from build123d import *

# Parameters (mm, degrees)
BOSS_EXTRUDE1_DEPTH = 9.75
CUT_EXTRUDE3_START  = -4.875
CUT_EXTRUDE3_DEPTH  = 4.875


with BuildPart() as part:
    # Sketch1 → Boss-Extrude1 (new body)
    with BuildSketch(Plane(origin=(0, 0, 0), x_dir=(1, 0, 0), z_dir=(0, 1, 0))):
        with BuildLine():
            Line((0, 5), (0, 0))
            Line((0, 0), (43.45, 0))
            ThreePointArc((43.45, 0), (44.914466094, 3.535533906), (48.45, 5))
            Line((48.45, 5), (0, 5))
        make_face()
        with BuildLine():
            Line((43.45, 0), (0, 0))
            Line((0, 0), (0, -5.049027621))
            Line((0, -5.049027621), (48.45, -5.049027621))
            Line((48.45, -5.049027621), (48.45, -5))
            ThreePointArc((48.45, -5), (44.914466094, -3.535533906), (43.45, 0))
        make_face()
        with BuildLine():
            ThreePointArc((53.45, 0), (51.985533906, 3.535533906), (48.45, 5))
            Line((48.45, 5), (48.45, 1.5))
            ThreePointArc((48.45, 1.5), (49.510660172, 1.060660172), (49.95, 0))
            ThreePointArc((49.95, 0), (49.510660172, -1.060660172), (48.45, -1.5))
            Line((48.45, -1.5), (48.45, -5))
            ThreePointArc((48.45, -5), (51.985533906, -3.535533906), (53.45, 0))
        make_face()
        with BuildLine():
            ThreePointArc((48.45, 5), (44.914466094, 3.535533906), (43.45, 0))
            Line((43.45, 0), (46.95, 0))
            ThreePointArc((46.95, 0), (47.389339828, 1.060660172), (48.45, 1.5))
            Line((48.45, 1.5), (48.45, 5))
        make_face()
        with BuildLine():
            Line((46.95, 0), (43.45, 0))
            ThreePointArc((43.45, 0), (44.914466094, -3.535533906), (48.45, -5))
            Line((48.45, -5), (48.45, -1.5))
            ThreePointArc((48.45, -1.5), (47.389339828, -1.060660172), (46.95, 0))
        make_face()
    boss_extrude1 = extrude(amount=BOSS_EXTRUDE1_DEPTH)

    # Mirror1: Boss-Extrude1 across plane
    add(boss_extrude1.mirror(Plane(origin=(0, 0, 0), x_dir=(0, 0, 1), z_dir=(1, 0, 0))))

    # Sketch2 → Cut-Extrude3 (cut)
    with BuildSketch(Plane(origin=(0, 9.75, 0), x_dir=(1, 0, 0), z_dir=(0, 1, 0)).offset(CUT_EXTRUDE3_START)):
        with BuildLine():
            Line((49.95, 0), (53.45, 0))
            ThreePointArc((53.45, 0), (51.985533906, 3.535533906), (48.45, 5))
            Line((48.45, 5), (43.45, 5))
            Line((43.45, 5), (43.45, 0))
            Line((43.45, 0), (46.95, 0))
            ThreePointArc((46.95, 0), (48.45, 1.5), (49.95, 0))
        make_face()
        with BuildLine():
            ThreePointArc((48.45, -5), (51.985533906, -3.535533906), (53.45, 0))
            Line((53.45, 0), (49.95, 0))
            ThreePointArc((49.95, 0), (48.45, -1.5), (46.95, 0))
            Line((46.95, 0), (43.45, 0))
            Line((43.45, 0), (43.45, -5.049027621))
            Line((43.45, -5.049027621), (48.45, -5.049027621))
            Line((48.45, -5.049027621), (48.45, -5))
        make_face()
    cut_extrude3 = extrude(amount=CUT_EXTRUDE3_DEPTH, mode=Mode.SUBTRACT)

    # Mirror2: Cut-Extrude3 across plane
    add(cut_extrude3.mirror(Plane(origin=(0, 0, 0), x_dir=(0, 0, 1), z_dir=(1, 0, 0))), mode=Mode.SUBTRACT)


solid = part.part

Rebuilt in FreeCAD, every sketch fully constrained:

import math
import FreeCAD as App
import Part
import Sketcher

V = App.Vector
Q = App.Units.Quantity

doc = App.newDocument("Part")
params = doc.addObject("Spreadsheet::Sheet", "Params")
for row, (alias, value) in enumerate([
    ("sketch1_radius", "5 mm"),
    ("sketch1_radius2", "1.5 mm"),
    ("sketch1_width", "48.45 mm"),
    ("pad1_length", "9.75 mm"),
    ("sketch2_diameter", "3 mm"),
    ("sketch2_radius", "5 mm"),
    ("sketch2_width", "5 mm"),
    ("pocket1_length", "4.875 mm"),
], start=1):
    params.set(f"A{row}", alias)
    params.set(f"B{row}", "=" + value)
    params.setAlias(f"B{row}", alias)

body = doc.addObject("PartDesign::Body", "Body")

sketch1 = body.newObject("Sketcher::SketchObject", "Sketch")
sketch1.AttachmentSupport = (doc.getObject("XZ_Plane"), [""])
sketch1.MapMode = "FlatFace"
sketch1.addGeometry([
    Part.LineSegment(V(48.45, 5.049, 0), V(48.45, 5, 0)),
    Part.ArcOfCircle(Part.Circle(V(48.45, 0, 0), V(0, 0, 1), 5), math.radians(0), math.radians(90)),
    Part.ArcOfCircle(Part.Circle(V(48.45, 0, 0), V(0, 0, 1), 5), math.radians(-90), math.radians(0)),
    Part.LineSegment(V(48.45, -5, 0), V(0, -5, 0)),
    Part.LineSegment(V(0, -5, 0), V(0, 5.049, 0)),
    Part.LineSegment(V(0, 5.049, 0), V(48.45, 5.049, 0)),
    Part.ArcOfCircle(Part.Circle(V(48.45, 0, 0), V(0, 0, 1), 1.5), math.radians(0), math.radians(90)),
    Part.ArcOfCircle(Part.Circle(V(48.45, 0, 0), V(0, 0, 1), 1.5), math.radians(90), math.radians(180)),
    Part.ArcOfCircle(Part.Circle(V(48.45, 0, 0), V(0, 0, 1), 1.5), math.radians(180), math.radians(270)),
    Part.ArcOfCircle(Part.Circle(V(48.45, 0, 0), V(0, 0, 1), 1.5), math.radians(-90), math.radians(0)),
], False)
sketch1.addConstraint([
    Sketcher.Constraint("Coincident", 0, 2, 1, 2),
    Sketcher.Constraint("Tangent", 1, 1, 2, 2),
    Sketcher.Constraint("Tangent", 2, 1, 3, 1),
    Sketcher.Constraint("Coincident", 3, 2, 4, 1),
    Sketcher.Constraint("Coincident", 4, 2, 5, 1),
    Sketcher.Constraint("Coincident", 5, 2, 0, 1),
    Sketcher.Constraint("Tangent", 6, 2, 7, 1),
    Sketcher.Constraint("Tangent", 7, 2, 8, 1),
    Sketcher.Constraint("Tangent", 8, 2, 9, 1),
    Sketcher.Constraint("Tangent", 9, 2, 6, 1),
    Sketcher.Constraint("Vertical", 0),
    Sketcher.Constraint("Horizontal", 3),
    Sketcher.Constraint("Vertical", 4),
    Sketcher.Constraint("Horizontal", 5),
    Sketcher.Constraint("Coincident", 6, 3, 1, 3),
    Sketcher.Constraint("Equal", 1, 2),
    Sketcher.Constraint("Equal", 6, 7),
    Sketcher.Constraint("Symmetric", 0, 2, 2, 1, -1),
    Sketcher.Constraint("PointOnObject", 1, 1, -1),
    Sketcher.Constraint("PointOnObject", 3, 2, -2),
    Sketcher.Constraint("PointOnObject", 7, 2, -1),
    Sketcher.Constraint("PointOnObject", 9, 2, -1),
    Sketcher.Constraint("Vertical", 5, 2, 6, 2),
    Sketcher.Constraint("Vertical", 6, 2, 8, 2),
    Sketcher.Constraint("Radius", 1, Q("5 mm")),
    Sketcher.Constraint("Radius", 6, Q("1.5 mm")),
    Sketcher.Constraint("DistanceX", 3, 2, 3, 1, Q("48.45 mm")),
    Sketcher.Constraint("DistanceY", 0, 2, 0, 1, Q("0.049028 mm")),
])
sketch1.setExpression("Constraints[24]", "Params.sketch1_radius")
sketch1.setExpression("Constraints[25]", "Params.sketch1_radius2")
sketch1.setExpression("Constraints[26]", "Params.sketch1_width")
pad1 = body.newObject("PartDesign::Pad", "Pad")
pad1.Profile = sketch1
pad1.setExpression("Length", "Params.pad1_length")
pad1.Reversed = True
doc.recompute()

mirrored = body.newObject("PartDesign::Mirrored", "Mirrored")
mirrored.Originals = [pad1]
mirrored.MirrorPlane = (doc.getObject("YZ_Plane"), [""])
body.Tip = mirrored

sketch2 = body.newObject("Sketcher::SketchObject", "Sketch001")
sketch2.AttachmentSupport = (doc.getObject("XZ_Plane"), [""])
sketch2.MapMode = "FlatFace"
sketch2.AttachmentOffset = App.Placement(V(0, 0, -4.875), App.Rotation())
sketch2.addGeometry([
    Part.ArcOfCircle(Part.Circle(V(48.45, 0, 0), V(0, 0, 1), 5), math.radians(-90), math.radians(0)),
    Part.LineSegment(V(48.45, -5, 0), V(43.45, -5, 0)),
    Part.LineSegment(V(43.45, -5, 0), V(43.45, 5.049, 0)),
    Part.LineSegment(V(43.45, 5.049, 0), V(48.45, 5.049, 0)),
    Part.LineSegment(V(48.45, 5.049, 0), V(48.45, 5, 0)),
    Part.ArcOfCircle(Part.Circle(V(48.45, 0, 0), V(0, 0, 1), 5), math.radians(0), math.radians(90)),
    Part.Circle(V(48.45, 0, 0), V(0, 0, 1), 1.5),
], False)
sketch2.addConstraint([
    Sketcher.Constraint("Tangent", 0, 1, 1, 1),
    Sketcher.Constraint("Coincident", 1, 2, 2, 1),
    Sketcher.Constraint("Coincident", 2, 2, 3, 1),
    Sketcher.Constraint("Coincident", 3, 2, 4, 1),
    Sketcher.Constraint("Coincident", 4, 2, 5, 2),
    Sketcher.Constraint("Tangent", 5, 1, 0, 2),
    Sketcher.Constraint("Horizontal", 1),
    Sketcher.Constraint("Vertical", 2),
    Sketcher.Constraint("Horizontal", 3),
    Sketcher.Constraint("Vertical", 4),
    Sketcher.Constraint("Coincident", 6, 3, 0, 3),
    Sketcher.Constraint("Equal", 0, 5),
    Sketcher.Constraint("Symmetric", 0, 1, 4, 2, -1),
    Sketcher.Constraint("PointOnObject", 5, 1, -1),
    Sketcher.Constraint("Diameter", 6, Q("3 mm")),
    Sketcher.Constraint("Radius", 0, Q("5 mm")),
    Sketcher.Constraint("DistanceX", 1, 2, 1, 1, Q("5 mm")),
    Sketcher.Constraint("DistanceX", -1, 1, 0, 3, Q("48.45 mm")),
    Sketcher.Constraint("DistanceY", 2, 1, 2, 2, Q("10.049028 mm")),
])
sketch2.setExpression("Constraints[14]", "Params.sketch2_diameter")
sketch2.setExpression("Constraints[15]", "Params.sketch2_radius")
sketch2.setExpression("Constraints[16]", "Params.sketch2_width")
pocket1 = body.newObject("PartDesign::Pocket", "Pocket")
pocket1.Profile = sketch2
pocket1.setExpression("Length", "Params.pocket1_length")
doc.recompute()

mirrored2 = body.newObject("PartDesign::Mirrored", "Mirrored001")
mirrored2.Originals = [pocket1]
mirrored2.MirrorPlane = (doc.getObject("YZ_Plane"), [""])
body.Tip = mirrored2

doc.recompute()
